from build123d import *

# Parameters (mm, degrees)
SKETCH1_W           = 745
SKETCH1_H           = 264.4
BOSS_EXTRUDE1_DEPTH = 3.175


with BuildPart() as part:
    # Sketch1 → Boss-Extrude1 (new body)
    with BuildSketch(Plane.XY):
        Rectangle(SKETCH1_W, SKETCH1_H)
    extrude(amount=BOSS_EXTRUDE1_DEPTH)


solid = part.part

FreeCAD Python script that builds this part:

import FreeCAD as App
import Part
import Sketcher
from FreeCAD import Vector

doc = App.newDocument("Part")
body = doc.addObject("PartDesign::Body", "Body")

# Sketch on XY plane
sketch1 = body.newObject("Sketcher::SketchObject", "Sketch")
sketch1.AttachmentSupport = (doc.getObject("XY_Plane"), [""])
sketch1.MapMode = "FlatFace"
sketch1.addGeometry([
    Part.LineSegment(Vector(-372, 132, 0), Vector(-372, -132, 0)),
    Part.LineSegment(Vector(-372, -132, 0), Vector(372, -132, 0)),
    Part.LineSegment(Vector(372, -132, 0), Vector(372, 132, 0)),
    Part.LineSegment(Vector(372, 132, 0), Vector(-372, 132, 0)),
], False)
sketch1.addConstraint([
    Sketcher.Constraint("Coincident", 0, 2, 1, 1),
    Sketcher.Constraint("Coincident", 1, 2, 2, 1),
    Sketcher.Constraint("Coincident", 2, 2, 3, 1),
    Sketcher.Constraint("Coincident", 3, 2, 0, 1),
    Sketcher.Constraint("Vertical", 0),
    Sketcher.Constraint("Horizontal", 1),
    Sketcher.Constraint("Vertical", 2),
    Sketcher.Constraint("Horizontal", 3),
    Sketcher.Constraint("Symmetric", 0, 2, 2, 2, -1, 1),
    Sketcher.Constraint("DistanceX", 1, 1, 1, 2, 745.0),
    Sketcher.Constraint("DistanceY", 0, 2, 0, 1, 264.4),
])
pad1 = body.newObject("PartDesign::Pad", "Pad")
pad1.Profile = sketch1
pad1.Length = 3.175

doc.recompute()
